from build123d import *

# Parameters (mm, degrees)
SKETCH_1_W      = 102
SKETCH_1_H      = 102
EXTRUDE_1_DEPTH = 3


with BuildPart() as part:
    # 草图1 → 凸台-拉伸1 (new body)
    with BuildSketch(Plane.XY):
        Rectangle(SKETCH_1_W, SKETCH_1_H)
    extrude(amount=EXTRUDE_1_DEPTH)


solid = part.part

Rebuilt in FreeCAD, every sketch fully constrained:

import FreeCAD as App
import Part
import Sketcher

V = App.Vector

doc = App.newDocument("Part")
body = doc.addObject("PartDesign::Body", "Body")

sketch1 = body.newObject("Sketcher::SketchObject", "Sketch")
sketch1.AttachmentSupport = (doc.getObject("XY_Plane"), [""])
sketch1.MapMode = "FlatFace"
sketch1.addGeometry([
    Part.LineSegment(V(-51, 51, 0), V(-51, -51, 0)),
    Part.LineSegment(V(-51, -51, 0), V(51, -51, 0)),
    Part.LineSegment(V(51, -51, 0), V(51, 51, 0)),
    Part.LineSegment(V(51, 51, 0), V(-51, 51, 0)),
], False)
sketch1.addConstraint([
    Sketcher.Constraint("Coincident", 0, 2, 1, 1),
    Sketcher.Constraint("Coincident", 1, 2, 2, 1),
    Sketcher.Constraint("Coincident", 2, 2, 3, 1),
    Sketcher.Constraint("Coincident", 3, 2, 0, 1),
    Sketcher.Constraint("Vertical", 0),
    Sketcher.Constraint("Horizontal", 1),
    Sketcher.Constraint("Vertical", 2),
    Sketcher.Constraint("Horizontal", 3),
    Sketcher.Constraint("Symmetric", 0, 2, 2, 2, -1, 1),
    Sketcher.Constraint("Equal", 3, 0),
    Sketcher.Constraint("DistanceX", 1, 1, 1, 2, 102.0),
])
pad1 = body.newObject("PartDesign::Pad", "Pad")
pad1.Profile = sketch1
pad1.Length = 3

doc.recompute()
